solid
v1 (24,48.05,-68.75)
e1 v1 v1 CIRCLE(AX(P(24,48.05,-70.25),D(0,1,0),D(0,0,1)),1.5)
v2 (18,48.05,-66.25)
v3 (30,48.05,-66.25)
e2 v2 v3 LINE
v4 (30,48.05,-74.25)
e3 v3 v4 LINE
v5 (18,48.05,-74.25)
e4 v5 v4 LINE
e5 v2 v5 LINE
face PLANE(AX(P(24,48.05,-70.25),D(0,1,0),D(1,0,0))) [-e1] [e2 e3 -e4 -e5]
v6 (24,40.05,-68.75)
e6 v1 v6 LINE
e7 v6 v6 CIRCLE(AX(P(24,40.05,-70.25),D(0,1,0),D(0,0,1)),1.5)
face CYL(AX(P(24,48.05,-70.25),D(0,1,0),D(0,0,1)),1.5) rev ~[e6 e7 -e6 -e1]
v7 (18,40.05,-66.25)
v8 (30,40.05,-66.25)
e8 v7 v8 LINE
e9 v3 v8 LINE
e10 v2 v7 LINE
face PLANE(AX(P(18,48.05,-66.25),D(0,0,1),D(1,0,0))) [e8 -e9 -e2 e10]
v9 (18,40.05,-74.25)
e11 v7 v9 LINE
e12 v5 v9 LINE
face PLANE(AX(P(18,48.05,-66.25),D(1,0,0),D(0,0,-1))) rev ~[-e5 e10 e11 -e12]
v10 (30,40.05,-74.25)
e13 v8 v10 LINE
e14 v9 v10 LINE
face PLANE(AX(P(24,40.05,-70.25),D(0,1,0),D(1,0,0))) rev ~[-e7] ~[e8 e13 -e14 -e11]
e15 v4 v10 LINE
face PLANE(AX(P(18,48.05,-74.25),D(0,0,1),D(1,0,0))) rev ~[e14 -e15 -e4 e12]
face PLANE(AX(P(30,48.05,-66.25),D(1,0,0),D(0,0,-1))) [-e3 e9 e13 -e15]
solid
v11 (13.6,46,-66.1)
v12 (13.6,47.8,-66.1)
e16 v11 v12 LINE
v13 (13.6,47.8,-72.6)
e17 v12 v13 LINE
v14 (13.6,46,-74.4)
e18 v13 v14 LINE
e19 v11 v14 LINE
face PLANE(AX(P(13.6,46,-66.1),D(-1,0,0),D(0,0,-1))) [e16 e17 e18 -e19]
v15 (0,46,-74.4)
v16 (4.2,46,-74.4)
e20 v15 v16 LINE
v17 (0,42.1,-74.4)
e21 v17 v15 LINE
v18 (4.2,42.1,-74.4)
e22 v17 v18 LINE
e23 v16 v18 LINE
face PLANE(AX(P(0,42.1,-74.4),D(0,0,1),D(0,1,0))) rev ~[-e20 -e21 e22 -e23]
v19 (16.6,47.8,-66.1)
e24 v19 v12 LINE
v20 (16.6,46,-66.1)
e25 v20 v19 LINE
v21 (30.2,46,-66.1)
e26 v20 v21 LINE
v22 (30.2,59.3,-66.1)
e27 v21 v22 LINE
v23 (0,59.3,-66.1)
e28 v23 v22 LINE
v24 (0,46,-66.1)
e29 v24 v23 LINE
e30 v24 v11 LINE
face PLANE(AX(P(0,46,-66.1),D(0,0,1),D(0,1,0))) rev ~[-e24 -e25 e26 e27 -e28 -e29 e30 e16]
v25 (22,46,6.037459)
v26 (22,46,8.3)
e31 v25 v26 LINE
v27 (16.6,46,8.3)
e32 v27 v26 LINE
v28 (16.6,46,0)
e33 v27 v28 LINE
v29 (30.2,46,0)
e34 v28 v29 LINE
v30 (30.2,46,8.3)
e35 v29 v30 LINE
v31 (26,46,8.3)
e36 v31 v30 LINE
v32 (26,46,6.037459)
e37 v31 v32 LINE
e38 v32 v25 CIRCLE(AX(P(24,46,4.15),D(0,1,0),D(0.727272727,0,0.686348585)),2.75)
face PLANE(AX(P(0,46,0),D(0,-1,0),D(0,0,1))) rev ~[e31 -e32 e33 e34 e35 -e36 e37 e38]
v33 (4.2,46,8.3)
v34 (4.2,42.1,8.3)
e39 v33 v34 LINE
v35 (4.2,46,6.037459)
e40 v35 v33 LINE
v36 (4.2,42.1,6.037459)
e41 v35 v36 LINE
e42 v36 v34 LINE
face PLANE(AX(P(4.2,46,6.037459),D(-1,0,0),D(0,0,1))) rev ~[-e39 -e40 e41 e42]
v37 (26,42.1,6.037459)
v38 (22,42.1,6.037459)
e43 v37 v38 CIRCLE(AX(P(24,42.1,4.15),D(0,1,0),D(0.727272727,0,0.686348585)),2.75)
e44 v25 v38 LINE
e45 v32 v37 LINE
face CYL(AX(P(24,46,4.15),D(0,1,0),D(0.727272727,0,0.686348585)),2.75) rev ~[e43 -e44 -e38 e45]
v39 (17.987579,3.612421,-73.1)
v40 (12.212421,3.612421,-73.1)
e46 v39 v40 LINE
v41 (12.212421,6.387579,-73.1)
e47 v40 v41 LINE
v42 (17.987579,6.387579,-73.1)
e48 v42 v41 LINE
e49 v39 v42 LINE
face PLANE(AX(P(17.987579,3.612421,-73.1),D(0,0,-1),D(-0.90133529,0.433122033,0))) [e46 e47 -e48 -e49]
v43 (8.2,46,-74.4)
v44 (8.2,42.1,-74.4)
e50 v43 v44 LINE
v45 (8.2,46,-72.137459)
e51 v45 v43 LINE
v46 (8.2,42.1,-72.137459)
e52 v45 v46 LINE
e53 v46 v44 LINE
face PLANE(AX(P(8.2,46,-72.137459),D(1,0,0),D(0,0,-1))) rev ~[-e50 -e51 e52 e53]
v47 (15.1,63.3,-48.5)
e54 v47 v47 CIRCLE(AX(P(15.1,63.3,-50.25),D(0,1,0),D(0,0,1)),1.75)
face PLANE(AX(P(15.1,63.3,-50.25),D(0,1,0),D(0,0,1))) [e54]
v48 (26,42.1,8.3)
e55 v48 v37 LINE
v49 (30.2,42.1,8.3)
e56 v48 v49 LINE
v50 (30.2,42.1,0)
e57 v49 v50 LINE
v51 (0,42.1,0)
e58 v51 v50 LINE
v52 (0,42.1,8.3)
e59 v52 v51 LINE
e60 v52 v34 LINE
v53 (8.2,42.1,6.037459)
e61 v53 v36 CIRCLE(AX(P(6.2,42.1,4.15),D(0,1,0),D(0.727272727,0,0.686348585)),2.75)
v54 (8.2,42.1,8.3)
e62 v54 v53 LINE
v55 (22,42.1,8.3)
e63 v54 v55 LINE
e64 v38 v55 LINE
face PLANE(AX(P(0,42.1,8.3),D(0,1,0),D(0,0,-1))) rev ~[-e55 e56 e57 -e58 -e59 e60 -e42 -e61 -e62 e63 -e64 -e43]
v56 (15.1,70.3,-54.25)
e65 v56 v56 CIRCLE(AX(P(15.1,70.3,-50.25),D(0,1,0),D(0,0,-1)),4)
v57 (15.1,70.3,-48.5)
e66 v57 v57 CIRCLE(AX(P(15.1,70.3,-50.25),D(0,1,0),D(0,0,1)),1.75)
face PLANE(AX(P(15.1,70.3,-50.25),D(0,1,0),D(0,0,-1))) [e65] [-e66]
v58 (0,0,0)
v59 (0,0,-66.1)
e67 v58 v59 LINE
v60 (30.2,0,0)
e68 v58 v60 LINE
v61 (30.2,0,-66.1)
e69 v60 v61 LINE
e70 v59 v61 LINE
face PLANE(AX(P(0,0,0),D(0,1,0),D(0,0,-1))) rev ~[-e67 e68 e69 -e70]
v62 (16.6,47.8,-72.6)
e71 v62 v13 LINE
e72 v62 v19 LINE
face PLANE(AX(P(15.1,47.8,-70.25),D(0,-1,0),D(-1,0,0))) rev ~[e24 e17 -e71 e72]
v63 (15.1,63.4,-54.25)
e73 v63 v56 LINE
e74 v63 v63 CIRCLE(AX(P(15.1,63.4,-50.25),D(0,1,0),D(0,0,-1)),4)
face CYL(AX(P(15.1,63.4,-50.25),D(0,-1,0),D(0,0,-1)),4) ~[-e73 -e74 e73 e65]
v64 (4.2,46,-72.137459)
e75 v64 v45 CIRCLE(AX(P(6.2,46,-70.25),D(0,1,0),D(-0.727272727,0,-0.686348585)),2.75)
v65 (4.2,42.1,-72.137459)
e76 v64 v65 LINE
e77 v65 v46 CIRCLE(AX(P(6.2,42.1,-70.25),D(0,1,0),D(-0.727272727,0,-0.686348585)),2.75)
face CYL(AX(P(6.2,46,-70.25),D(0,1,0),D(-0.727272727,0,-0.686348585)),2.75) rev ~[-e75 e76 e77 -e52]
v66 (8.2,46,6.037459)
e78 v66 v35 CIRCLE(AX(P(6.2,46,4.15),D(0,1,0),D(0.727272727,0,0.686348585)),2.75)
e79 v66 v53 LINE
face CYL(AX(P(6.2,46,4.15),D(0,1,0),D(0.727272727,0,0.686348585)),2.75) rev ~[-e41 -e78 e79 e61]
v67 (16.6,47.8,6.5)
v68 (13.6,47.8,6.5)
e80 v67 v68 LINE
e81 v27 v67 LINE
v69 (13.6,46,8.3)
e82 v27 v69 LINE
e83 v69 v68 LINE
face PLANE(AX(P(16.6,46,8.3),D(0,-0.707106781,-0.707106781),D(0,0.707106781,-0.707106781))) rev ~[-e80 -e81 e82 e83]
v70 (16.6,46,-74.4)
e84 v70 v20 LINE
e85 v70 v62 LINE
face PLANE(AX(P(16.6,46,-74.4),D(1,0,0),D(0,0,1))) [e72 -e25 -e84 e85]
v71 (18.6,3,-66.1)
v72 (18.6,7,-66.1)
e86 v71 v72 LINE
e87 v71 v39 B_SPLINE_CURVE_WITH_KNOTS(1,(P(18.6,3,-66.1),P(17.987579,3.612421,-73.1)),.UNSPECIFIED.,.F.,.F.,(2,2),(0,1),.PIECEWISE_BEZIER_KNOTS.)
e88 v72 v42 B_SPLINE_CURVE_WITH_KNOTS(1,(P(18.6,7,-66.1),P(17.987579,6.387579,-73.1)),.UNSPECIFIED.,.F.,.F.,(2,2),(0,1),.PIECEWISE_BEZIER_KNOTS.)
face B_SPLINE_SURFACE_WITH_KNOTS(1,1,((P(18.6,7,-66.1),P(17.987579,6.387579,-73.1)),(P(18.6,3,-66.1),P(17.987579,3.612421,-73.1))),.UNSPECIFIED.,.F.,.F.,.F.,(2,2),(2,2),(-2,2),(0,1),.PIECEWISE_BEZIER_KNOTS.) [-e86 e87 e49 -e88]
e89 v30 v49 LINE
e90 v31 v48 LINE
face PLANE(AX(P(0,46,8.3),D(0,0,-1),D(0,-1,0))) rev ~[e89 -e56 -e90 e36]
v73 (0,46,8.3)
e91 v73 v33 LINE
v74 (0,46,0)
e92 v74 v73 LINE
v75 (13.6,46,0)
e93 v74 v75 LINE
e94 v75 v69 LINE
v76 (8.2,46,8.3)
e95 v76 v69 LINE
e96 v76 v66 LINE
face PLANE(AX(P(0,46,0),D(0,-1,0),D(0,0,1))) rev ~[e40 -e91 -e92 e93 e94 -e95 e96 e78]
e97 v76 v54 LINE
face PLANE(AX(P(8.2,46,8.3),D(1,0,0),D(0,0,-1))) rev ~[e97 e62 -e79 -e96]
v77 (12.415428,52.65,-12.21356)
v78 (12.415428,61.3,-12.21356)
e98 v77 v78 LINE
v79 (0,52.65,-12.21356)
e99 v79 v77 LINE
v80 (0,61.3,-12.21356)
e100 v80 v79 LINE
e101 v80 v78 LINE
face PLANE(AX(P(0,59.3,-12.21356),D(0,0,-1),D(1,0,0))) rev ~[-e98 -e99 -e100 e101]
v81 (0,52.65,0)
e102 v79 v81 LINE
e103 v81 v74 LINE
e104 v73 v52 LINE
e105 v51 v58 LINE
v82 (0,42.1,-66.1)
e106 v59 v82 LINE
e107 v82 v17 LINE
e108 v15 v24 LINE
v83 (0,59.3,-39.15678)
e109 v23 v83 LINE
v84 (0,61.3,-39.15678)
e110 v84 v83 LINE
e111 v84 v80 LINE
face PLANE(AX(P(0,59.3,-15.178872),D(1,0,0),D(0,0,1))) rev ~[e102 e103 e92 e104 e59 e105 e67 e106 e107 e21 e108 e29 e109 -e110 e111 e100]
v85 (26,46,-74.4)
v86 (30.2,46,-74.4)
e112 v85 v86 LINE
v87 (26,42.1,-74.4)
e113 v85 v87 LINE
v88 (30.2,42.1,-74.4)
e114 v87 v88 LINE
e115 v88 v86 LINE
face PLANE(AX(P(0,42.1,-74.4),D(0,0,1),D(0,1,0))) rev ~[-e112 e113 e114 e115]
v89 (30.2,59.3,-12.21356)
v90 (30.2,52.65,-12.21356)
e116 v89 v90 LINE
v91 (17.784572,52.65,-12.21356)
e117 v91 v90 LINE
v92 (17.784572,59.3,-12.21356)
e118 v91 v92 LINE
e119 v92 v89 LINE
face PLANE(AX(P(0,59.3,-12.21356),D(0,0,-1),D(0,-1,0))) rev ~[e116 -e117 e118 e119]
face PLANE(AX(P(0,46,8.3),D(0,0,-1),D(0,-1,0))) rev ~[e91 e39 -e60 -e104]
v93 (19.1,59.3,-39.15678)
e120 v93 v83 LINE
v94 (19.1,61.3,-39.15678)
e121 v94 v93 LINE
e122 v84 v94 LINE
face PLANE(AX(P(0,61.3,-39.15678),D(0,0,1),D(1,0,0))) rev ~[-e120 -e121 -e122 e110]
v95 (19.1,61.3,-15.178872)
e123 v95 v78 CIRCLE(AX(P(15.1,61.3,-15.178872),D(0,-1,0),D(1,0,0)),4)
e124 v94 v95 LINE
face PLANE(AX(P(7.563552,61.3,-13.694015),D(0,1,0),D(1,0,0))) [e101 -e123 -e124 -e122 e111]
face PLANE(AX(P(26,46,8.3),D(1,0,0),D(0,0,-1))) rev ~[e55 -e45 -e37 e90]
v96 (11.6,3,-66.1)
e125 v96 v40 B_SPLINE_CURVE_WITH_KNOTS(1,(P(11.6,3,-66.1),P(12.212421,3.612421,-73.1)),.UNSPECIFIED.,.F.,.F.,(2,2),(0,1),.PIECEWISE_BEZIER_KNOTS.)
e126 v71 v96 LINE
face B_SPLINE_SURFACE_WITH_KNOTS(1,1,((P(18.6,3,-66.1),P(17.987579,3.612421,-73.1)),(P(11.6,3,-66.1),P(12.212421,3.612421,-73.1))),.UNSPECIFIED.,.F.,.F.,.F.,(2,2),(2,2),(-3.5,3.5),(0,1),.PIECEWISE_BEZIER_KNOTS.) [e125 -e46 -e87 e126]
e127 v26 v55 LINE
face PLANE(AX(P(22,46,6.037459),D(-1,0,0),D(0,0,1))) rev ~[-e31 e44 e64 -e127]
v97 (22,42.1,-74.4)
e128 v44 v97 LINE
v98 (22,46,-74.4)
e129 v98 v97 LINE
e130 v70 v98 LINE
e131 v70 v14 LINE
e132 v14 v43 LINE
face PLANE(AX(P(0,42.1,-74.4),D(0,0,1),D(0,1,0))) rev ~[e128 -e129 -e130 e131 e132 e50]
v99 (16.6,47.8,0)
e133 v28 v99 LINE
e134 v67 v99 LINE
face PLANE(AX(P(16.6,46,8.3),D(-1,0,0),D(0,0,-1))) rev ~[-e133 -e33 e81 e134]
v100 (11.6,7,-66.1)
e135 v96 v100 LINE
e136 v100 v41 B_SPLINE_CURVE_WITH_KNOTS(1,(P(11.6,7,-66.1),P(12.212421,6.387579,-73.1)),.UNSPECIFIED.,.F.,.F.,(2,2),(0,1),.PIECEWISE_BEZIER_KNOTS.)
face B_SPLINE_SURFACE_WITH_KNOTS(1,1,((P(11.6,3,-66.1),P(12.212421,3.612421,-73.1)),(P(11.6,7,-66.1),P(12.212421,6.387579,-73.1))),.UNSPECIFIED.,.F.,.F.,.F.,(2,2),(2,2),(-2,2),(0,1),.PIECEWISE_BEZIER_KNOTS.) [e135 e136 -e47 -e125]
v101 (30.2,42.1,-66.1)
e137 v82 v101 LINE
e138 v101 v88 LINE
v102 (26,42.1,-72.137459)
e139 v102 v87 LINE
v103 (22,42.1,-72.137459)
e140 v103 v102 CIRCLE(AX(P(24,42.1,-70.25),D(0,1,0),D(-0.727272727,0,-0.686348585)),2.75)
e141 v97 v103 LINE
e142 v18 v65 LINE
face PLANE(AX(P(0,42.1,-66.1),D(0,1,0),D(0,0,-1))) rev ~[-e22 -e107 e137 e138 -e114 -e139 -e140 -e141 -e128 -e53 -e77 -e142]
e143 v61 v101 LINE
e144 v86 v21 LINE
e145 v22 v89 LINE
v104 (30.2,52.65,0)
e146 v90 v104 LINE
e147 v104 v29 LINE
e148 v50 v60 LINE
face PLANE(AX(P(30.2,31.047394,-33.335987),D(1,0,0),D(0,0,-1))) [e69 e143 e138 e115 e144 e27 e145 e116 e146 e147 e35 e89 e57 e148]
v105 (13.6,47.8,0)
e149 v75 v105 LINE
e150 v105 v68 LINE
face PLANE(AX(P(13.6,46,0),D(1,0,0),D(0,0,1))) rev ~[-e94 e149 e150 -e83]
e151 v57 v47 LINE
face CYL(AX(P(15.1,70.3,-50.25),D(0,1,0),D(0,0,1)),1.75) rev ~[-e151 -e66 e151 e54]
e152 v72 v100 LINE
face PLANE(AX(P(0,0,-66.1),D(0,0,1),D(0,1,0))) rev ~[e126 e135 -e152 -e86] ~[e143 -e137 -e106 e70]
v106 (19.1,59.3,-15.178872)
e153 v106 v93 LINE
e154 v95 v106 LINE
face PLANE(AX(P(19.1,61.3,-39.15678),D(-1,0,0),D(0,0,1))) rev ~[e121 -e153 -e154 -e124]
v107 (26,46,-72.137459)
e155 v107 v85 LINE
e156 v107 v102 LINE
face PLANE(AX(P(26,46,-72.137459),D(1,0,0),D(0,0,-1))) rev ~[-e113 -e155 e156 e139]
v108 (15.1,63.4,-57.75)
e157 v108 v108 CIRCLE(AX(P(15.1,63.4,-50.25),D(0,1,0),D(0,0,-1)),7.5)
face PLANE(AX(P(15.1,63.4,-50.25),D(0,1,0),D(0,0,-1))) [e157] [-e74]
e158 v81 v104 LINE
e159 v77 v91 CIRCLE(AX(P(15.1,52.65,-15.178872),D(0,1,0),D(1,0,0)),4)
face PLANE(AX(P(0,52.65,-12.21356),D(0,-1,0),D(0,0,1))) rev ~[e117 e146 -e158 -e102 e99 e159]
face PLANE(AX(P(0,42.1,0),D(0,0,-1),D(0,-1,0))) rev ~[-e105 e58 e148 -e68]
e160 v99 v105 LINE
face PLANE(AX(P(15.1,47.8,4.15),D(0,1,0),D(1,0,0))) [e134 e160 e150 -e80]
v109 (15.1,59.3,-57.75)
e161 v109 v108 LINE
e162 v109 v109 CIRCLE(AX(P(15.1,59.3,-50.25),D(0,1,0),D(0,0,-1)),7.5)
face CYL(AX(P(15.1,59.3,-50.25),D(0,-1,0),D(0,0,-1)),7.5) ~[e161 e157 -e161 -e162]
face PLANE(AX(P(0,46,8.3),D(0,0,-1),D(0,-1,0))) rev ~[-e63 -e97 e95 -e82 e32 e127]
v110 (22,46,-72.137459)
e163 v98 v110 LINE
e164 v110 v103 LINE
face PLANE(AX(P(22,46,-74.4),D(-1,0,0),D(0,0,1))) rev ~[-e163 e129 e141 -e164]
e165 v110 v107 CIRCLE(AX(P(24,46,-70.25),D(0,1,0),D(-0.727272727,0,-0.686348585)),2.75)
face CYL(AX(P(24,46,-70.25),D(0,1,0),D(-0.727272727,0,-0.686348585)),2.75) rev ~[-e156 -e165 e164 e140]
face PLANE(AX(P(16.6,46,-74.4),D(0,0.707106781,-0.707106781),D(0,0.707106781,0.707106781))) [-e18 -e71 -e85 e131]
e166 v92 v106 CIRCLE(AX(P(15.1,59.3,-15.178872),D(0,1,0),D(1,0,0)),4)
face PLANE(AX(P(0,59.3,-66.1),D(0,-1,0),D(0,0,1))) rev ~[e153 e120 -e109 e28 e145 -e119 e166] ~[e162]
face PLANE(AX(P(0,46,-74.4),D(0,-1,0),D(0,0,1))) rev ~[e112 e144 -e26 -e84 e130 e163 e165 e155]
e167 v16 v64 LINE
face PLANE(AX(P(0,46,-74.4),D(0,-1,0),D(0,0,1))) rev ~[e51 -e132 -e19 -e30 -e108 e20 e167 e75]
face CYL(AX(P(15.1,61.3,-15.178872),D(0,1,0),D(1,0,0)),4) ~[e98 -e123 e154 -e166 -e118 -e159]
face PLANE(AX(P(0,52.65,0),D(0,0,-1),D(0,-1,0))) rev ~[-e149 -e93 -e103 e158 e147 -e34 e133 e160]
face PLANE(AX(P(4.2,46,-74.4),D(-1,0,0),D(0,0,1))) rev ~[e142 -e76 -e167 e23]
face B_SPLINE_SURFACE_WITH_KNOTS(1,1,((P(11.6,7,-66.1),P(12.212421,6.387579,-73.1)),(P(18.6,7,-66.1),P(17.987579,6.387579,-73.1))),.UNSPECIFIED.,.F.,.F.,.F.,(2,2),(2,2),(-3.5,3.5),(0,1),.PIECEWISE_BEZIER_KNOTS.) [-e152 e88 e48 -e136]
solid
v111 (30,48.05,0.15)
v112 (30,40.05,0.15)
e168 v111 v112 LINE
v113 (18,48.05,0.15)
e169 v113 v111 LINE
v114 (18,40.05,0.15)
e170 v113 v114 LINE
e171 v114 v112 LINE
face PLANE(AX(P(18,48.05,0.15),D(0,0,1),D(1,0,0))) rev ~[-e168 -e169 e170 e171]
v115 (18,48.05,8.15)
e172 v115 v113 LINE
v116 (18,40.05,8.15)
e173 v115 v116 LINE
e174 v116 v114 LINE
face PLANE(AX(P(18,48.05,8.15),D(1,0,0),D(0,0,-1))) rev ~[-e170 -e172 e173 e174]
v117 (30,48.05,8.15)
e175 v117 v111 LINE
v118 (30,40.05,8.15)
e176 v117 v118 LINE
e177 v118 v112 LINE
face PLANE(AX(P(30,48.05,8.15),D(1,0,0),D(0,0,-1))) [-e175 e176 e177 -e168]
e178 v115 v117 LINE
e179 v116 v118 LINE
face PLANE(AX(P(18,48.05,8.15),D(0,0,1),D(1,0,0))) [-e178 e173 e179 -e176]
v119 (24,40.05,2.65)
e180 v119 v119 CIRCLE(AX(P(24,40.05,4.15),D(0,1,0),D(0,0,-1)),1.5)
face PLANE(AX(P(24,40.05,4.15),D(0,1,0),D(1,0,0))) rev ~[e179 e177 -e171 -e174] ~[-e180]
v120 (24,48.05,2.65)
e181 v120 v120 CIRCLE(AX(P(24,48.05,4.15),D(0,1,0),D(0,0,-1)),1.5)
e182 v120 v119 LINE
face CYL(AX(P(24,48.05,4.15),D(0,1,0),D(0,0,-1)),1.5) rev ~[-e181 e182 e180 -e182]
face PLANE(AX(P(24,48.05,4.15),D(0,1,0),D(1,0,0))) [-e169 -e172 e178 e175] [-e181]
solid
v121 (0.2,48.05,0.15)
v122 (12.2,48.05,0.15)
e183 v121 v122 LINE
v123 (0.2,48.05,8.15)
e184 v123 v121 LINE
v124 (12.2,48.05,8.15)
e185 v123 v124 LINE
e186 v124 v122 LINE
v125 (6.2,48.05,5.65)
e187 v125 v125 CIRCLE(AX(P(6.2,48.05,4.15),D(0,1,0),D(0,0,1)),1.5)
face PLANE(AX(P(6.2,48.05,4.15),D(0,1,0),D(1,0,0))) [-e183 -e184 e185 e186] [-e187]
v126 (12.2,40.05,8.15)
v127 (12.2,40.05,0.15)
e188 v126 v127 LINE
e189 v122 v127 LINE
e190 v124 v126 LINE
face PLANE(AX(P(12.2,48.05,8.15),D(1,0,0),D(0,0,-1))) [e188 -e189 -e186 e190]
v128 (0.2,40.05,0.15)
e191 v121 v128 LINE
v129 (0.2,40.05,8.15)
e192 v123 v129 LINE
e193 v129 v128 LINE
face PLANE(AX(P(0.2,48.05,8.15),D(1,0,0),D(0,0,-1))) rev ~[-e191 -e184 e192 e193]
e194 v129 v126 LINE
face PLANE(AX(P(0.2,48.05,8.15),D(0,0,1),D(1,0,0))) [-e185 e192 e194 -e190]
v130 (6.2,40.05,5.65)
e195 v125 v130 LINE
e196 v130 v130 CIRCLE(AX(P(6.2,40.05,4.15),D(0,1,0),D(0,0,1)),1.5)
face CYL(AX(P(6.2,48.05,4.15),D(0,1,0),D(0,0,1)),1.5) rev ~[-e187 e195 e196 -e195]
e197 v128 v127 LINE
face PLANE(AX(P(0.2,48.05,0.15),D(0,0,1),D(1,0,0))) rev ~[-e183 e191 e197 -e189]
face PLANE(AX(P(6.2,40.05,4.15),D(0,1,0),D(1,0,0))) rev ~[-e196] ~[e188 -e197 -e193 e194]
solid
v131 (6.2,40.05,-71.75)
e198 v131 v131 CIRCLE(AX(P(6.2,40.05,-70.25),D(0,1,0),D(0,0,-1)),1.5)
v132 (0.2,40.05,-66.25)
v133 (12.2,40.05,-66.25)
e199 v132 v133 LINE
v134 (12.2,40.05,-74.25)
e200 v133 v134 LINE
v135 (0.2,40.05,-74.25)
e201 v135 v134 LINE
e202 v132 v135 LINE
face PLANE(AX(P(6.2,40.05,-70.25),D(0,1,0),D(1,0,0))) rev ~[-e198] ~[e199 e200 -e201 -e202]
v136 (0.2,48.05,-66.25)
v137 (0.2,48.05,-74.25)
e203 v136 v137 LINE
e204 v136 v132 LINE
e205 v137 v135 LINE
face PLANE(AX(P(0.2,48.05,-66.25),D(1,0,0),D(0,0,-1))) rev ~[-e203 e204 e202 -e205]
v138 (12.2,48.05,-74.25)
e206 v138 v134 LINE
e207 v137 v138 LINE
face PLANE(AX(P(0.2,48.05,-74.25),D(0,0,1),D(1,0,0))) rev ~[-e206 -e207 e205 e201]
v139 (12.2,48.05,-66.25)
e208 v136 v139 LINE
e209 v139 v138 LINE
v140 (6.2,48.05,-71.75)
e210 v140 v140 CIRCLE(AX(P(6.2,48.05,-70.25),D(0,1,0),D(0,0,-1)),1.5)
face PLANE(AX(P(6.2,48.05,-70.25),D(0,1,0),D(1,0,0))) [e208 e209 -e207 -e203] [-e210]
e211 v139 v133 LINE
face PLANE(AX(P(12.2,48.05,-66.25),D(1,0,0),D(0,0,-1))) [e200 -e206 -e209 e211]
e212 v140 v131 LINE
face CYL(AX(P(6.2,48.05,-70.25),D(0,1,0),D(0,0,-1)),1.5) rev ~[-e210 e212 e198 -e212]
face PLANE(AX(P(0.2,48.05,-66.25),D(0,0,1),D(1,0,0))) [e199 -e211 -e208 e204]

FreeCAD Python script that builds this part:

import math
import FreeCAD as App
import Part
import Sketcher
from FreeCAD import Vector
Q = App.Units.Quantity

doc = App.newDocument("Part")
body = doc.addObject("PartDesign::Body", "Body")

sketch1 = doc.addObject("Sketcher::SketchObject", "Sketch")
body.addObject(sketch1)
sketch1.AttachmentSupport = (doc.YZ_Plane, [""])
sketch1.MapMode = "FlatFace"
sketch1.addGeometry([
    Part.LineSegment(Vector(0, 0, 0), Vector(0, -66.1, 0)),
    Part.LineSegment(Vector(0, -66.1, 0), Vector(42.1, -66.1, 0)),
    Part.LineSegment(Vector(42.1, -66.1, 0), Vector(42.1, -74.4, 0)),
    Part.LineSegment(Vector(42.1, -74.4, 0), Vector(46, -74.4, 0)),
    Part.LineSegment(Vector(46, -74.4, 0), Vector(46, -66.1, 0)),
    Part.LineSegment(Vector(46, -66.1, 0), Vector(59.3, -66.1, 0)),
    Part.LineSegment(Vector(59.3, -66.1, 0), Vector(59.3, -12.2, 0)),
    Part.LineSegment(Vector(59.3, -12.2, 0), Vector(52.6, -12.2, 0)),
    Part.LineSegment(Vector(52.6, -12.2, 0), Vector(52.6, 0, 0)),
    Part.LineSegment(Vector(52.6, 0, 0), Vector(46, 0, 0)),
    Part.LineSegment(Vector(46, 0, 0), Vector(46, 8.3, 0)),
    Part.LineSegment(Vector(46, 8.3, 0), Vector(42.1, 8.3, 0)),
    Part.LineSegment(Vector(42.1, 8.3, 0), Vector(42.1, 0, 0)),
    Part.LineSegment(Vector(42.1, 0, 0), Vector(0, 0, 0)),
], False)
sketch1.addConstraint([
    Sketcher.Constraint("Coincident", 0, 2, 1, 1),
    Sketcher.Constraint("Coincident", 1, 2, 2, 1),
    Sketcher.Constraint("Coincident", 2, 2, 3, 1),
    Sketcher.Constraint("Coincident", 3, 2, 4, 1),
    Sketcher.Constraint("Coincident", 4, 2, 5, 1),
    Sketcher.Constraint("Coincident", 5, 2, 6, 1),
    Sketcher.Constraint("Coincident", 6, 2, 7, 1),
    Sketcher.Constraint("Coincident", 7, 2, 8, 1),
    Sketcher.Constraint("Coincident", 8, 2, 9, 1),
    Sketcher.Constraint("Coincident", 9, 2, 10, 1),
    Sketcher.Constraint("Coincident", 10, 2, 11, 1),
    Sketcher.Constraint("Coincident", 11, 2, 12, 1),
    Sketcher.Constraint("Coincident", 12, 2, 13, 1),
    Sketcher.Constraint("Coincident", 13, 2, 0, 1),
    Sketcher.Constraint("Vertical", 0),
    Sketcher.Constraint("Horizontal", 1),
    Sketcher.Constraint("Vertical", 2),
    Sketcher.Constraint("Horizontal", 3),
    Sketcher.Constraint("Vertical", 4),
    Sketcher.Constraint("Horizontal", 5),
    Sketcher.Constraint("Vertical", 6),
    Sketcher.Constraint("Horizontal", 7),
    Sketcher.Constraint("Vertical", 8),
    Sketcher.Constraint("Horizontal", 9),
    Sketcher.Constraint("Vertical", 10),
    Sketcher.Constraint("Horizontal", 11),
    Sketcher.Constraint("Vertical", 12),
    Sketcher.Constraint("Horizontal", 13),
    Sketcher.Constraint("Coincident", 13, 2, -1, 1),
    Sketcher.Constraint("PointOnObject", 8, 2, -1),
    Sketcher.Constraint("Horizontal", 1, 2, 4, 2),
    Sketcher.Constraint("Vertical", 4, 2, 9, 2),
    Sketcher.Constraint("Vertical", 2, 2, 11, 2),
    Sketcher.Constraint("Equal", 7, 9),
    Sketcher.Constraint("Equal", 4, 10),
    Sketcher.Constraint("DistanceX", 1, 1, 1, 2, Q("42.1 mm")),
    Sketcher.Constraint("DistanceX", 3, 1, 3, 2, Q("3.9 mm")),
    Sketcher.Constraint("DistanceX", 5, 1, 5, 2, Q("13.3 mm")),
    Sketcher.Constraint("DistanceY", 0, 2, 0, 1, Q("66.1 mm")),
    Sketcher.Constraint("DistanceY", 2, 2, 2, 1, Q("8.3 mm")),
    Sketcher.Constraint("DistanceY", 6, 1, 6, 2, Q("53.88644 mm")),
])
pad1 = doc.addObject("PartDesign::Pad", "Pad")
body.addObject(pad1)
pad1.Profile = sketch1
pad1.Length = 30.2

sketch2 = doc.addObject("Sketcher::SketchObject", "Sketch001")
body.addObject(sketch2)
sketch2.AttachmentSupport = (doc.XZ_Plane, [""])
sketch2.MapMode = "FlatFace"
sketch2.AttachmentOffset = App.Placement(Vector(0, 0, -46), App.Rotation())
sketch2.addGeometry([
    Part.LineSegment(Vector(22, -74.4, 0), Vector(22, -72.1, 0)),
    Part.ArcOfCircle(Part.Circle(Vector(24, -70.2, 0), Vector(0, 0, 1), 2.8), math.radians(-43), math.radians(223)),
    Part.LineSegment(Vector(26, -72.1, 0), Vector(26, -74.4, 0)),
    Part.LineSegment(Vector(26, -74.4, 0), Vector(22, -74.4, 0)),
    Part.LineSegment(Vector(4.2, -74.4, 0), Vector(4.2, -72.1, 0)),
    Part.ArcOfCircle(Part.Circle(Vector(6.2, -70.2, 0), Vector(0, 0, 1), 2.8), math.radians(-43), math.radians(223)),
    Part.LineSegment(Vector(8.2, -72.1, 0), Vector(8.2, -74.4, 0)),
    Part.LineSegment(Vector(8.2, -74.4, 0), Vector(4.2, -74.4, 0)),
    Part.LineSegment(Vector(26, 8.3, 0), Vector(26, 6, 0)),
    Part.ArcOfCircle(Part.Circle(Vector(24, 4.2, 0), Vector(0, 0, 1), 2.8), math.radians(137), math.radians(403)),
    Part.LineSegment(Vector(22, 6, 0), Vector(22, 8.3, 0)),
    Part.LineSegment(Vector(22, 8.3, 0), Vector(26, 8.3, 0)),
    Part.LineSegment(Vector(8.2, 8.3, 0), Vector(8.2, 6, 0)),
    Part.ArcOfCircle(Part.Circle(Vector(6.2, 4.2, 0), Vector(0, 0, 1), 2.8), math.radians(137), math.radians(403)),
    Part.LineSegment(Vector(4.2, 6, 0), Vector(4.2, 8.3, 0)),
    Part.LineSegment(Vector(4.2, 8.3, 0), Vector(8.2, 8.3, 0)),
], False)
sketch2.addConstraint([
    Sketcher.Constraint("Coincident", 0, 2, 1, 2),
    Sketcher.Constraint("Coincident", 1, 1, 2, 1),
    Sketcher.Constraint("Coincident", 2, 2, 3, 1),
    Sketcher.Constraint("Coincident", 3, 2, 0, 1),
    Sketcher.Constraint("Coincident", 4, 2, 5, 2),
    Sketcher.Constraint("Coincident", 5, 1, 6, 1),
    Sketcher.Constraint("Coincident", 6, 2, 7, 1),
    Sketcher.Constraint("Coincident", 7, 2, 4, 1),
    Sketcher.Constraint("Coincident", 8, 2, 9, 2),
    Sketcher.Constraint("Coincident", 9, 1, 10, 1),
    Sketcher.Constraint("Coincident", 10, 2, 11, 1),
    Sketcher.Constraint("Coincident", 11, 2, 8, 1),
    Sketcher.Constraint("Coincident", 12, 2, 13, 2),
    Sketcher.Constraint("Coincident", 13, 1, 14, 1),
    Sketcher.Constraint("Coincident", 14, 2, 15, 1),
    Sketcher.Constraint("Coincident", 15, 2, 12, 1),
    Sketcher.Constraint("Vertical", 0),
    Sketcher.Constraint("Vertical", 2),
    Sketcher.Constraint("Horizontal", 3),
    Sketcher.Constraint("Vertical", 4),
    Sketcher.Constraint("Vertical", 6),
    Sketcher.Constraint("Horizontal", 7),
    Sketcher.Constraint("Vertical", 8),
    Sketcher.Constraint("Vertical", 10),
    Sketcher.Constraint("Horizontal", 11),
    Sketcher.Constraint("Vertical", 12),
    Sketcher.Constraint("Vertical", 14),
    Sketcher.Constraint("Horizontal", 15),
    Sketcher.Constraint("Equal", 1, 5),
    Sketcher.Constraint("Equal", 5, 9),
    Sketcher.Constraint("Equal", 9, 13),
    Sketcher.Constraint("Horizontal", 1, 3, 5, 3),
    Sketcher.Constraint("Horizontal", 9, 3, 13, 3),
    Sketcher.Constraint("Horizontal", 0, 2, 1, 1),
    Sketcher.Constraint("Horizontal", 1, 1, 4, 2),
    Sketcher.Constraint("Horizontal", 4, 2, 5, 1),
    Sketcher.Constraint("Horizontal", 3, 2, 6, 2),
    Sketcher.Constraint("Horizontal", 8, 2, 9, 1),
    Sketcher.Constraint("Horizontal", 9, 1, 12, 2),
    Sketcher.Constraint("Horizontal", 12, 2, 13, 1),
    Sketcher.Constraint("Horizontal", 11, 2, 14, 2),
    Sketcher.Constraint("Vertical", 1, 3, 9, 3),
    Sketcher.Constraint("Vertical", 5, 3, 13, 3),
    Sketcher.Constraint("Vertical", 2, 2, 8, 2),
    Sketcher.Constraint("Equal", 6, 8),
    Sketcher.Constraint("DistanceX", 3, 2, 3, 1, Q("4 mm")),
    Sketcher.Constraint("Radius", 1, Q("2.75 mm")),
    Sketcher.Constraint("DistanceX", -1, 1, 1, 3, Q("24 mm")),
    Sketcher.Constraint("DistanceX", -1, 1, 5, 3, Q("6.2 mm")),
    Sketcher.Constraint("DistanceY", 2, 2, -1, 1, Q("74.4 mm")),
    Sketcher.Constraint("DistanceY", -1, 1, 10, 2, Q("8.3 mm")),
    Sketcher.Constraint("DistanceY", 1, 3, 9, 3, Q("74.4 mm")),
])
pocket1 = doc.addObject("PartDesign::Pocket", "Pocket")
body.addObject(pocket1)
pocket1.Profile = sketch2
pocket1.Length = 6.9
pocket1.Reversed = True

sketch3 = doc.addObject("Sketcher::SketchObject", "Sketch002")
body.addObject(sketch3)
sketch3.AttachmentSupport = (doc.XZ_Plane, [""])
sketch3.MapMode = "FlatFace"
sketch3.AttachmentOffset = App.Placement(Vector(0, 0, -59.3), App.Rotation())
sketch3.addGeometry(Part.Circle(Vector(15, -50, 0), Vector(0, 0, 1), 8), False)
sketch3.addConstraint([
    Sketcher.Constraint("Diameter", 0, Q("15 mm")),
    Sketcher.Constraint("DistanceX", -1, 1, 0, 3, Q("15.1 mm")),
    Sketcher.Constraint("DistanceY", 0, 3, -1, 1, Q("50.25 mm")),
])
pad2 = doc.addObject("PartDesign::Pad", "Pad001")
body.addObject(pad2)
pad2.Profile = sketch3
pad2.Length = 4.1
pad2.Reversed = True

sketch4 = doc.addObject("Sketcher::SketchObject", "Sketch003")
body.addObject(sketch4)
sketch4.AttachmentSupport = (doc.XZ_Plane, [""])
sketch4.MapMode = "FlatFace"
sketch4.AttachmentOffset = App.Placement(Vector(0, 0, -63.4), App.Rotation())
sketch4.addGeometry(Part.Circle(Vector(15.1, -50.2, 0), Vector(0, 0, 1), 4), False)
sketch4.addConstraint([
    Sketcher.Constraint("Diameter", 0, Q("8 mm")),
    Sketcher.Constraint("DistanceX", -1, 1, 0, 3, Q("15.1 mm")),
    Sketcher.Constraint("DistanceY", 0, 3, -1, 1, Q("50.25 mm")),
])
pad3 = doc.addObject("PartDesign::Pad", "Pad002")
body.addObject(pad3)
pad3.Profile = sketch4
pad3.Length = 6.9
pad3.Reversed = True

sketch5 = doc.addObject("Sketcher::SketchObject", "Sketch004")
body.addObject(sketch5)
sketch5.AttachmentSupport = (doc.XZ_Plane, [""])
sketch5.MapMode = "FlatFace"
sketch5.AttachmentOffset = App.Placement(Vector(0, 0, -61.3), App.Rotation())
sketch5.addGeometry([
    Part.LineSegment(Vector(19.1, -39.2, 0), Vector(0, -39.2, 0)),
    Part.LineSegment(Vector(0, -39.2, 0), Vector(0, -15.2, 0)),
    Part.LineSegment(Vector(0, -15.2, 0), Vector(11.1, -15.2, 0)),
    Part.ArcOfCircle(Part.Circle(Vector(15.1, -15.2, 0), Vector(0, 0, 1), 4), math.radians(0), math.radians(180)),
    Part.LineSegment(Vector(19.1, -15.2, 0), Vector(19.1, -39.2, 0)),
], False)
sketch5.addConstraint([
    Sketcher.Constraint("Coincident", 0, 2, 1, 1),
    Sketcher.Constraint("Coincident", 1, 2, 2, 1),
    Sketcher.Constraint("Coincident", 2, 2, 3, 2),
    Sketcher.Constraint("Tangent", 3, 1, 4, 1),
    Sketcher.Constraint("Coincident", 4, 2, 0, 1),
    Sketcher.Constraint("Horizontal", 0),
    Sketcher.Constraint("Vertical", 1),
    Sketcher.Constraint("Horizontal", 2),
    Sketcher.Constraint("Vertical", 4),
    Sketcher.Constraint("PointOnObject", 0, 2, -2),
    Sketcher.Constraint("Horizontal", 3, 3, 1, 2),
    Sketcher.Constraint("Radius", 3, Q("4 mm")),
    Sketcher.Constraint("DistanceX", 0, 2, 0, 1, Q("19.1 mm")),
    Sketcher.Constraint("DistanceY", 1, 1, 1, 2, Q("23.977908 mm")),
    Sketcher.Constraint("DistanceY", 0, 2, -1, 1, Q("39.15678 mm")),
])
pad4 = doc.addObject("PartDesign::Pad", "Pad003")
body.addObject(pad4)
pad4.Profile = sketch5
pad4.Length = 8.9

sketch6 = doc.addObject("Sketcher::SketchObject", "Sketch005")
body.addObject(sketch6)
sketch6.AttachmentSupport = (doc.XZ_Plane, [""])
sketch6.MapMode = "FlatFace"
sketch6.AttachmentOffset = App.Placement(Vector(0, 0, -59.3), App.Rotation())
sketch6.addGeometry([
    Part.LineSegment(Vector(0, -12.2, 0), Vector(15.2, -12.2, 0)),
    Part.LineSegment(Vector(15.2, -12.2, 0), Vector(15.1, -15.2, 0)),
    Part.LineSegment(Vector(15.1, -15.2, 0), Vector(0, -15.2, 0)),
    Part.LineSegment(Vector(0, -15.2, 0), Vector(0, -12.2, 0)),
], False)
sketch6.addConstraint([
    Sketcher.Constraint("Coincident", 0, 2, 1, 1),
    Sketcher.Constraint("Coincident", 1, 2, 2, 1),
    Sketcher.Constraint("Coincident", 2, 2, 3, 1),
    Sketcher.Constraint("Coincident", 3, 2, 0, 1),
    Sketcher.Constraint("Horizontal", 0),
    Sketcher.Constraint("Horizontal", 2),
    Sketcher.Constraint("Vertical", 3),
    Sketcher.Constraint("PointOnObject", 2, 2, -2),
    Sketcher.Constraint("DistanceX", 2, 2, 2, 1, Q("15.1 mm")),
    Sketcher.Constraint("Distance", 1, Q("2.965799 mm")),
    Sketcher.Constraint("DistanceX", 0, 1, 0, 2, Q("15.153721 mm")),
    Sketcher.Constraint("DistanceY", 0, 2, -1, 1, Q("12.21356 mm")),
])
pad5 = doc.addObject("PartDesign::Pad", "Pad004")
body.addObject(pad5)
pad5.Profile = sketch6
pad5.Length = 2
pad5.Reversed = True

sketch7 = doc.addObject("Sketcher::SketchObject", "Sketch006")
body.addObject(sketch7)
sketch7.AttachmentSupport = (doc.XZ_Plane, [""])
sketch7.MapMode = "FlatFace"
sketch7.AttachmentOffset = App.Placement(Vector(0, 0, -46), App.Rotation())
sketch7.addGeometry([
    Part.LineSegment(Vector(16.6, -74.4, 0), Vector(13.6, -74.4, 0)),
    Part.LineSegment(Vector(13.6, -74.4, 0), Vector(13.6, -66.1, 0)),
    Part.LineSegment(Vector(13.6, -66.1, 0), Vector(16.6, -66.1, 0)),
    Part.LineSegment(Vector(16.6, -66.1, 0), Vector(16.6, -74.4, 0)),
    Part.LineSegment(Vector(13.6, 8.3, 0), Vector(16.6, 8.3, 0)),
    Part.LineSegment(Vector(16.6, 8.3, 0), Vector(16.6, 0, 0)),
    Part.LineSegment(Vector(16.6, 0, 0), Vector(13.6, 0, 0)),
    Part.LineSegment(Vector(13.6, 0, 0), Vector(13.6, 8.3, 0)),
], False)
sketch7.addConstraint([
    Sketcher.Constraint("Coincident", 0, 2, 1, 1),
    Sketcher.Constraint("Coincident", 1, 2, 2, 1),
    Sketcher.Constraint("Coincident", 2, 2, 3, 1),
    Sketcher.Constraint("Coincident", 3, 2, 0, 1),
    Sketcher.Constraint("Coincident", 4, 2, 5, 1),
    Sketcher.Constraint("Coincident", 5, 2, 6, 1),
    Sketcher.Constraint("Coincident", 6, 2, 7, 1),
    Sketcher.Constraint("Coincident", 7, 2, 4, 1),
    Sketcher.Constraint("Horizontal", 0),
    Sketcher.Constraint("Vertical", 1),
    Sketcher.Constraint("Horizontal", 2),
    Sketcher.Constraint("Vertical", 3),
    Sketcher.Constraint("Horizontal", 4),
    Sketcher.Constraint("Vertical", 5),
    Sketcher.Constraint("Horizontal", 6),
    Sketcher.Constraint("Vertical", 7),
    Sketcher.Constraint("PointOnObject", 5, 2, -1),
    Sketcher.Constraint("Vertical", 3, 2, 4, 2),
    Sketcher.Constraint("Vertical", 1, 2, 6, 2),
    Sketcher.Constraint("Equal", 3, 5),
    Sketcher.Constraint("DistanceX", 0, 2, 0, 1, Q("3 mm")),
    Sketcher.Constraint("DistanceY", 1, 1, 1, 2, Q("8.3 mm")),
    Sketcher.Constraint("DistanceX", -1, 1, 0, 2, Q("13.6 mm")),
    Sketcher.Constraint("DistanceY", 0, 2, -1, 1, Q("74.4 mm")),
])
pad6 = doc.addObject("PartDesign::Pad", "Pad005")
body.addObject(pad6)
pad6.Profile = sketch7
pad6.Length = 1.8
pad6.Reversed = True

sketch8 = doc.addObject("Sketcher::SketchObject", "Sketch007")
body.addObject(sketch8)
sketch8.AttachmentSupport = (doc.YZ_Plane, [""])
sketch8.MapMode = "FlatFace"
sketch8.AttachmentOffset = App.Placement(Vector(0, 0, 16.6), App.Rotation())
sketch8.addGeometry([
    Part.LineSegment(Vector(47.8, -72.6, 0), Vector(46, -74.4, 0)),
    Part.LineSegment(Vector(46, -74.4, 0), Vector(47.8, -74.4, 0)),
    Part.LineSegment(Vector(47.8, -74.4, 0), Vector(47.8, -72.6, 0)),
    Part.LineSegment(Vector(47.8, 8.3, 0), Vector(46, 8.3, 0)),
    Part.LineSegment(Vector(46, 8.3, 0), Vector(47.8, 6.5, 0)),
    Part.LineSegment(Vector(47.8, 6.5, 0), Vector(47.8, 8.3, 0)),
], False)
sketch8.addConstraint([
    Sketcher.Constraint("Coincident", 0, 2, 1, 1),
    Sketcher.Constraint("Coincident", 1, 2, 2, 1),
    Sketcher.Constraint("Coincident", 2, 2, 0, 1),
    Sketcher.Constraint("Coincident", 3, 2, 4, 1),
    Sketcher.Constraint("Coincident", 4, 2, 5, 1),
    Sketcher.Constraint("Coincident", 5, 2, 3, 1),
    Sketcher.Constraint("Horizontal", 1),
    Sketcher.Constraint("Vertical", 2),
    Sketcher.Constraint("Horizontal", 3),
    Sketcher.Constraint("Vertical", 5),
    Sketcher.Constraint("Perpendicular", 0, 4),
    Sketcher.Constraint("Vertical", 0, 2, 3, 2),
    Sketcher.Constraint("Vertical", 2, 2, 4, 2),
    Sketcher.Constraint("Equal", 3, 2),
    Sketcher.Constraint("DistanceX", 1, 1, 1, 2, Q("1.8 mm")),
    Sketcher.Constraint("DistanceX", -1, 1, 0, 2, Q("46 mm")),
    Sketcher.Constraint("DistanceY", 0, 2, -1, 1, Q("74.4 mm")),
    Sketcher.Constraint("DistanceY", -1, 1, 3, 2, Q("8.3 mm")),
])
pocket2 = doc.addObject("PartDesign::Pocket", "Pocket001")
body.addObject(pocket2)
pocket2.Profile = sketch8
pocket2.Length = 4

sketch9 = doc.addObject("Sketcher::SketchObject", "Sketch008")
body.addObject(sketch9)
sketch9.AttachmentSupport = (doc.XZ_Plane, [""])
sketch9.MapMode = "FlatFace"
sketch9.AttachmentOffset = App.Placement(Vector(0, 0, -70.3), App.Rotation())
sketch9.addGeometry(Part.Circle(Vector(15.1, -50.2, 0), Vector(0, 0, 1), 1.8), False)
sketch9.addConstraint([
    Sketcher.Constraint("Diameter", 0, Q("3.5 mm")),
    Sketcher.Constraint("DistanceX", -1, 1, 0, 3, Q("15.1 mm")),
    Sketcher.Constraint("DistanceY", 0, 3, -1, 1, Q("50.25 mm")),
])
pocket3 = doc.addObject("PartDesign::Pocket", "Pocket002")
body.addObject(pocket3)
pocket3.Profile = sketch9
pocket3.Length = 7
pocket3.Reversed = True

sketch10 = doc.addObject("Sketcher::SketchObject", "Sketch009")
body.addObject(sketch10)
sketch10.AttachmentSupport = (doc.XY_Plane, [""])
sketch10.MapMode = "FlatFace"
sketch10.AttachmentOffset = App.Placement(Vector(0, 0, -66.1), App.Rotation())
sketch10.addGeometry([
    Part.LineSegment(Vector(18.6, 7, 0), Vector(18.6, 3, 0)),
    Part.LineSegment(Vector(18.6, 3, 0), Vector(11.6, 3, 0)),
    Part.LineSegment(Vector(11.6, 3, 0), Vector(11.6, 7, 0)),
    Part.LineSegment(Vector(11.6, 7, 0), Vector(18.6, 7, 0)),
], False)
sketch10.addConstraint([
    Sketcher.Constraint("Coincident", 0, 2, 1, 1),
    Sketcher.Constraint("Coincident", 1, 2, 2, 1),
    Sketcher.Constraint("Coincident", 2, 2, 3, 1),
    Sketcher.Constraint("Coincident", 3, 2, 0, 1),
    Sketcher.Constraint("Vertical", 0),
    Sketcher.Constraint("Horizontal", 1),
    Sketcher.Constraint("Vertical", 2),
    Sketcher.Constraint("Horizontal", 3),
    Sketcher.Constraint("DistanceX", 1, 2, 1, 1, Q("7 mm")),
    Sketcher.Constraint("DistanceY", 0, 2, 0, 1, Q("4 mm")),
    Sketcher.Constraint("DistanceY", -1, 1, 0, 2, Q("3 mm")),
    Sketcher.Constraint("DistanceX", -1, 1, 0, 2, Q("18.6 mm")),
])
pad7 = doc.addObject("PartDesign::Pad", "Pad006")
body.addObject(pad7)
pad7.Profile = sketch10
pad7.Length = 7
pad7.Reversed = True
pad7.TaperAngle = -5
body2 = doc.addObject("PartDesign::Body", "Body001")

sketch11 = doc.addObject("Sketcher::SketchObject", "Sketch010")
body2.addObject(sketch11)
sketch11.AttachmentSupport = (doc.getObject("XZ_Plane001"), [""])
sketch11.MapMode = "FlatFace"
sketch11.AttachmentOffset = App.Placement(Vector(0, 0, -48.05), App.Rotation())
sketch11.addGeometry([
    Part.LineSegment(Vector(0.2, 0.1, 0), Vector(0.2, 8.2, 0)),
    Part.LineSegment(Vector(0.2, 8.2, 0), Vector(12.2, 8.2, 0)),
    Part.LineSegment(Vector(12.2, 8.2, 0), Vector(12.2, 0.1, 0)),
    Part.LineSegment(Vector(12.2, 0.1, 0), Vector(0.2, 0.1, 0)),
    Part.Circle(Vector(6.2, 4.2, 0), Vector(0, 0, 1), 1.5),
], False)
sketch11.addConstraint([
    Sketcher.Constraint("Coincident", 0, 2, 1, 1),
    Sketcher.Constraint("Coincident", 1, 2, 2, 1),
    Sketcher.Constraint("Coincident", 2, 2, 3, 1),
    Sketcher.Constraint("Coincident", 3, 2, 0, 1),
    Sketcher.Constraint("Vertical", 0),
    Sketcher.Constraint("Horizontal", 1),
    Sketcher.Constraint("Vertical", 2),
    Sketcher.Constraint("Horizontal", 3),
    Sketcher.Constraint("Diameter", 4, Q("3 mm")),
    Sketcher.Constraint("DistanceX", 1, 1, 1, 2, Q("12 mm")),
    Sketcher.Constraint("DistanceY", 0, 1, 0, 2, Q("8 mm")),
    Sketcher.Constraint("DistanceX", 0, 2, 4, 3, Q("6 mm")),
    Sketcher.Constraint("DistanceY", 4, 3, 0, 2, Q("4 mm")),
    Sketcher.Constraint("DistanceX", -1, 1, 4, 3, Q("6.2 mm")),
    Sketcher.Constraint("DistanceY", -1, 1, 4, 3, Q("4.15 mm")),
])
pad8 = doc.addObject("PartDesign::Pad", "Pad007")
body2.addObject(pad8)
pad8.Profile = sketch11
pad8.Length = 8
body3 = doc.addObject("PartDesign::Body", "Body002")

sketch12 = doc.addObject("Sketcher::SketchObject", "Sketch011")
body3.addObject(sketch12)
sketch12.AttachmentSupport = (doc.getObject("XZ_Plane002"), [""])
sketch12.MapMode = "FlatFace"
sketch12.AttachmentOffset = App.Placement(Vector(0, 0, -48.05), App.Rotation())
sketch12.addGeometry([
    Part.LineSegment(Vector(18, 0.1, 0), Vector(18, 8.2, 0)),
    Part.LineSegment(Vector(18, 8.2, 0), Vector(30, 8.2, 0)),
    Part.LineSegment(Vector(30, 8.2, 0), Vector(30, 0.1, 0)),
    Part.LineSegment(Vector(30, 0.1, 0), Vector(18, 0.1, 0)),
    Part.Circle(Vector(24, 4.2, 0), Vector(0, 0, 1), 1.5),
], False)
sketch12.addConstraint([
    Sketcher.Constraint("Coincident", 0, 2, 1, 1),
    Sketcher.Constraint("Coincident", 1, 2, 2, 1),
    Sketcher.Constraint("Coincident", 2, 2, 3, 1),
    Sketcher.Constraint("Coincident", 3, 2, 0, 1),
    Sketcher.Constraint("Vertical", 0),
    Sketcher.Constraint("Horizontal", 1),
    Sketcher.Constraint("Vertical", 2),
    Sketcher.Constraint("Horizontal", 3),
    Sketcher.Constraint("Diameter", 4, Q("3 mm")),
    Sketcher.Constraint("DistanceX", 1, 1, 1, 2, Q("12 mm")),
    Sketcher.Constraint("DistanceY", 0, 1, 0, 2, Q("8 mm")),
    Sketcher.Constraint("DistanceX", -1, 1, 4, 3, Q("24 mm")),
    Sketcher.Constraint("DistanceX", -1, 1, 0, 2, Q("18 mm")),
    Sketcher.Constraint("DistanceY", 4, 3, 0, 2, Q("4 mm")),
    Sketcher.Constraint("DistanceY", -1, 1, 4, 3, Q("4.15 mm")),
])
pad9 = doc.addObject("PartDesign::Pad", "Pad008")
body3.addObject(pad9)
pad9.Profile = sketch12
pad9.Length = 8
body4 = doc.addObject("PartDesign::Body", "Body003")

sketch13 = doc.addObject("Sketcher::SketchObject", "Sketch012")
body4.addObject(sketch13)
sketch13.AttachmentSupport = (doc.getObject("XZ_Plane003"), [""])
sketch13.MapMode = "FlatFace"
sketch13.AttachmentOffset = App.Placement(Vector(0, 0, -48.05), App.Rotation())
sketch13.addGeometry([
    Part.LineSegment(Vector(18, -74.2, 0), Vector(18, -66.2, 0)),
    Part.LineSegment(Vector(18, -66.2, 0), Vector(30, -66.2, 0)),
    Part.LineSegment(Vector(30, -66.2, 0), Vector(30, -74.2, 0)),
    Part.LineSegment(Vector(30, -74.2, 0), Vector(18, -74.2, 0)),
    Part.Circle(Vector(24, -70.2, 0), Vector(0, 0, 1), 1.5),
], False)
sketch13.addConstraint([
    Sketcher.Constraint("Coincident", 0, 2, 1, 1),
    Sketcher.Constraint("Coincident", 1, 2, 2, 1),
    Sketcher.Constraint("Coincident", 2, 2, 3, 1),
    Sketcher.Constraint("Coincident", 3, 2, 0, 1),
    Sketcher.Constraint("Vertical", 0),
    Sketcher.Constraint("Horizontal", 1),
    Sketcher.Constraint("Vertical", 2),
    Sketcher.Constraint("Horizontal", 3),
    Sketcher.Constraint("Diameter", 4, Q("3 mm")),
    Sketcher.Constraint("DistanceX", 1, 1, 1, 2, Q("12 mm")),
    Sketcher.Constraint("DistanceY", 0, 1, 0, 2, Q("8 mm")),
    Sketcher.Constraint("DistanceX", -1, 1, 4, 3, Q("24 mm")),
    Sketcher.Constraint("DistanceX", -1, 1, 0, 2, Q("18 mm")),
    Sketcher.Constraint("DistanceY", 4, 3, 0, 2, Q("4 mm")),
    Sketcher.Constraint("DistanceY", 4, 3, -1, 1, Q("70.25 mm")),
])
pad10 = doc.addObject("PartDesign::Pad", "Pad009")
body4.addObject(pad10)
pad10.Profile = sketch13
pad10.Length = 8
body5 = doc.addObject("PartDesign::Body", "Body004")

sketch14 = doc.addObject("Sketcher::SketchObject", "Sketch013")
body5.addObject(sketch14)
sketch14.AttachmentSupport = (doc.getObject("XZ_Plane004"), [""])
sketch14.MapMode = "FlatFace"
sketch14.AttachmentOffset = App.Placement(Vector(0, 0, -48.05), App.Rotation())
sketch14.addGeometry([
    Part.LineSegment(Vector(0.2, -74.2, 0), Vector(0.2, -66.2, 0)),
    Part.LineSegment(Vector(0.2, -66.2, 0), Vector(12.2, -66.2, 0)),
    Part.LineSegment(Vector(12.2, -66.2, 0), Vector(12.2, -74.2, 0)),
    Part.LineSegment(Vector(12.2, -74.2, 0), Vector(0.2, -74.2, 0)),
    Part.Circle(Vector(6.2, -70.2, 0), Vector(0, 0, 1), 1.5),
], False)
sketch14.addConstraint([
    Sketcher.Constraint("Coincident", 0, 2, 1, 1),
    Sketcher.Constraint("Coincident", 1, 2, 2, 1),
    Sketcher.Constraint("Coincident", 2, 2, 3, 1),
    Sketcher.Constraint("Coincident", 3, 2, 0, 1),
    Sketcher.Constraint("Vertical", 0),
    Sketcher.Constraint("Horizontal", 1),
    Sketcher.Constraint("Vertical", 2),
    Sketcher.Constraint("Horizontal", 3),
    Sketcher.Constraint("Diameter", 4, Q("3 mm")),
    Sketcher.Constraint("DistanceX", 1, 1, 1, 2, Q("12 mm")),
    Sketcher.Constraint("DistanceY", 0, 1, 0, 2, Q("8 mm")),
    Sketcher.Constraint("DistanceX", 0, 2, 4, 3, Q("6 mm")),
    Sketcher.Constraint("DistanceY", 4, 3, 0, 2, Q("4 mm")),
    Sketcher.Constraint("DistanceX", -1, 1, 4, 3, Q("6.2 mm")),
    Sketcher.Constraint("DistanceY", 4, 3, -1, 1, Q("70.25 mm")),
])
pad11 = doc.addObject("PartDesign::Pad", "Pad010")
body5.addObject(pad11)
pad11.Profile = sketch14
pad11.Length = 8

doc.recompute()
